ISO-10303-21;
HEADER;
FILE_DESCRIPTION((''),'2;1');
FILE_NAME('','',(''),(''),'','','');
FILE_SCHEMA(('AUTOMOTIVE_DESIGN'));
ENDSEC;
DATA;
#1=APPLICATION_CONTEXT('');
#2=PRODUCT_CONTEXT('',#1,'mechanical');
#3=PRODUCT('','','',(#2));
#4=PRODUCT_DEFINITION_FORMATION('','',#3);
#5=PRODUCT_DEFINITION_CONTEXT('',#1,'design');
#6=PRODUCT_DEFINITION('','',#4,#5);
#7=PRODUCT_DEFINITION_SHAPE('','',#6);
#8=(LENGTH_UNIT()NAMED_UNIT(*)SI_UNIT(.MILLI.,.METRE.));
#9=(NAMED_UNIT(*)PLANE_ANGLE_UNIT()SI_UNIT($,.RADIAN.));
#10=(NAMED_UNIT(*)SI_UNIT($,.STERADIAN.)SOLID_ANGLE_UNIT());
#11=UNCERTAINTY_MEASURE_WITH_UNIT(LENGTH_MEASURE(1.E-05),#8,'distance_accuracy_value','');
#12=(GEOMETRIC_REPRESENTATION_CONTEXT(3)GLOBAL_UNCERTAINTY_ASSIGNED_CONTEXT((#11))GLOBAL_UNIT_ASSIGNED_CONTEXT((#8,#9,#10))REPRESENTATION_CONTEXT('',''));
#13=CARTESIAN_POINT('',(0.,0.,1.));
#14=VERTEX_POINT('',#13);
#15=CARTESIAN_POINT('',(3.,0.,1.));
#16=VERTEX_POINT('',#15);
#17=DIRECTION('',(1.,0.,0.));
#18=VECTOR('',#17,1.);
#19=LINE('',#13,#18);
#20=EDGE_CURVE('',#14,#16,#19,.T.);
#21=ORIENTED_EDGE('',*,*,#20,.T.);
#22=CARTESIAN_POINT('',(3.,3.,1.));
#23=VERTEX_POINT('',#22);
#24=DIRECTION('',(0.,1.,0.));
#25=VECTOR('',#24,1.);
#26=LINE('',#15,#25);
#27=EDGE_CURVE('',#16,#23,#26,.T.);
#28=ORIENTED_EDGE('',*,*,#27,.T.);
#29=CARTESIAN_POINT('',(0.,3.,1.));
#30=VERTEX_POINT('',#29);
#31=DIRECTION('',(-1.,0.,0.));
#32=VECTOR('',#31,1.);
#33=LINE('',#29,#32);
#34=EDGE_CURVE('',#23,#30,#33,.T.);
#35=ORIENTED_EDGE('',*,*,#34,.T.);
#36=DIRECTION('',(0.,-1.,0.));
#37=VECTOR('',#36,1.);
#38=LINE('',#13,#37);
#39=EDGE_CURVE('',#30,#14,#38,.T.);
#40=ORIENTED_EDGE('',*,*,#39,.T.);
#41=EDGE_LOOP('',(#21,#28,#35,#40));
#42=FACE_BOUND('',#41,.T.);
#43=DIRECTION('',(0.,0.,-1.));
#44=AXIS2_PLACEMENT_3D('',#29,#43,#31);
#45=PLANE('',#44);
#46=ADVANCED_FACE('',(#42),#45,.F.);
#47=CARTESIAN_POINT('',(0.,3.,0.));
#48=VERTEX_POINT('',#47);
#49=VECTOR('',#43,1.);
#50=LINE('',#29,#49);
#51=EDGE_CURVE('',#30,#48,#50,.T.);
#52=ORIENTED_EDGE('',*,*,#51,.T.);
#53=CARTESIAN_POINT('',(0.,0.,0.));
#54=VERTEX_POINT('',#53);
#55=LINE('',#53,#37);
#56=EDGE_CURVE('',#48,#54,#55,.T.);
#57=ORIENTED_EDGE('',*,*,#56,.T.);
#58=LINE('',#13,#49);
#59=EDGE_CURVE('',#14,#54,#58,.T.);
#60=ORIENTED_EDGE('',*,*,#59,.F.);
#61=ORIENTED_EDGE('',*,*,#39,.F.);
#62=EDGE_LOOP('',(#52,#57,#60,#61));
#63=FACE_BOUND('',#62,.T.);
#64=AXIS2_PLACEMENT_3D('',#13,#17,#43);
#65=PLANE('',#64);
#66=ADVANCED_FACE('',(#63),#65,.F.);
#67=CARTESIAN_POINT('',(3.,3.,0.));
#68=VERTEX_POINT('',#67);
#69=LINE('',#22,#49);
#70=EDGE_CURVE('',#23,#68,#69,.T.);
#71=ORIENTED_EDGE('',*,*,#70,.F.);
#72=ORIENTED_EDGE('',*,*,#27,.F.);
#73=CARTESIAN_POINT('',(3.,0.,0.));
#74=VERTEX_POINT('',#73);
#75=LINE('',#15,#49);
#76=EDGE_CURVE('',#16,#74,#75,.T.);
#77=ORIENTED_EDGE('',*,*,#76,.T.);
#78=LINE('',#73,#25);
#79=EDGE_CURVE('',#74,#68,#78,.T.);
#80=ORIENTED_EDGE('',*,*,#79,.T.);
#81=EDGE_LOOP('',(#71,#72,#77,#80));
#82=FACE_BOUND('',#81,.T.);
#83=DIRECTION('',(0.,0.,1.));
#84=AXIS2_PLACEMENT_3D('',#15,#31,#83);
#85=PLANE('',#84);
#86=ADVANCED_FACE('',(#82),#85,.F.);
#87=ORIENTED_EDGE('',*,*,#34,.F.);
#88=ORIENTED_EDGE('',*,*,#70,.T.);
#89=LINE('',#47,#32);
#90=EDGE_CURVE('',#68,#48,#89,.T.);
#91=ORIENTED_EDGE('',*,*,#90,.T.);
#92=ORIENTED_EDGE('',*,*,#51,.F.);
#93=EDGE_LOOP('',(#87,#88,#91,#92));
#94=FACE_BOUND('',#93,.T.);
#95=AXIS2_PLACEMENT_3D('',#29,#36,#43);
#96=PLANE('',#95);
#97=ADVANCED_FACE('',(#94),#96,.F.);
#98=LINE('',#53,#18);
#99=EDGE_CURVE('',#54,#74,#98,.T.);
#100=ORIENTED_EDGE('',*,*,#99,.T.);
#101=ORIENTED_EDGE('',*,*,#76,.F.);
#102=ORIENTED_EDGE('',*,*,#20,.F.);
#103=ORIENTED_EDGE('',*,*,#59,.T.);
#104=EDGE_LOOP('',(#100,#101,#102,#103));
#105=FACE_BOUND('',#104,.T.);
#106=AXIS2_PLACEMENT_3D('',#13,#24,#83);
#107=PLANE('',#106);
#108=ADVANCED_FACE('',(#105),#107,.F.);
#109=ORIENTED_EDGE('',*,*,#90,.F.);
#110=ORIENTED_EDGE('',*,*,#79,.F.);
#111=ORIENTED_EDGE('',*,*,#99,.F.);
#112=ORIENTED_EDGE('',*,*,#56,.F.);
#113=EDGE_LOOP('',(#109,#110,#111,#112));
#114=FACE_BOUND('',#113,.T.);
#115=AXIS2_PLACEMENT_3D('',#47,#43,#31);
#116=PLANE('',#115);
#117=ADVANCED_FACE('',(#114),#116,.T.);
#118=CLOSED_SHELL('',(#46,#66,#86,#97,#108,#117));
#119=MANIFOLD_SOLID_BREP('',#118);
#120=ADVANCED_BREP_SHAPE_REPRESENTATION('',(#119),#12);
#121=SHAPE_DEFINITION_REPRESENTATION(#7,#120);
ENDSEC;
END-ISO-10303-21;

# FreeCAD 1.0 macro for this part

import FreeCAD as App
import Part
import Sketcher
from FreeCAD import Vector
Q = App.Units.Quantity


def add_polygon(sketch, points):
    """Adds a closed chain of lines whose ends are joined by coincident constraints."""
    first, n = sketch.GeometryCount, len(points)
    for a, b in zip(points, points[1:] + points[:1]):
        sketch.addGeometry(Part.LineSegment(App.Vector(*a, 0), App.Vector(*b, 0)), False)
    for i in range(n):
        sketch.addConstraint(Sketcher.Constraint("Coincident", first + i, 2, first + (i + 1) % n, 1))

doc = App.newDocument("Part")
body = doc.addObject("PartDesign::Body", "Body")

# Sketch on XY plane
sketch1 = doc.addObject("Sketcher::SketchObject", "Sketch")
body.addObject(sketch1)
sketch1.AttachmentSupport = (doc.XY_Plane, [""])
sketch1.MapMode = "FlatFace"
add_polygon(sketch1, [(0, 3), (0, 0), (3, 0), (3, 3)])  # lines 0-3
sketch1.addConstraint([
    Sketcher.Constraint("Vertical", 0),
    Sketcher.Constraint("Horizontal", 1),
    Sketcher.Constraint("Vertical", 2),
    Sketcher.Constraint("Horizontal", 3),
    Sketcher.Constraint("Coincident", 0, 2, -1, 1),
    Sketcher.Constraint("Equal", 3, 0),
    Sketcher.Constraint("DistanceX", 1, 1, 1, 2, Q("3 mm")),
])
pad1 = doc.addObject("PartDesign::Pad", "Pad")
body.addObject(pad1)
pad1.Profile = sketch1
pad1.Length = 1

doc.recompute()
